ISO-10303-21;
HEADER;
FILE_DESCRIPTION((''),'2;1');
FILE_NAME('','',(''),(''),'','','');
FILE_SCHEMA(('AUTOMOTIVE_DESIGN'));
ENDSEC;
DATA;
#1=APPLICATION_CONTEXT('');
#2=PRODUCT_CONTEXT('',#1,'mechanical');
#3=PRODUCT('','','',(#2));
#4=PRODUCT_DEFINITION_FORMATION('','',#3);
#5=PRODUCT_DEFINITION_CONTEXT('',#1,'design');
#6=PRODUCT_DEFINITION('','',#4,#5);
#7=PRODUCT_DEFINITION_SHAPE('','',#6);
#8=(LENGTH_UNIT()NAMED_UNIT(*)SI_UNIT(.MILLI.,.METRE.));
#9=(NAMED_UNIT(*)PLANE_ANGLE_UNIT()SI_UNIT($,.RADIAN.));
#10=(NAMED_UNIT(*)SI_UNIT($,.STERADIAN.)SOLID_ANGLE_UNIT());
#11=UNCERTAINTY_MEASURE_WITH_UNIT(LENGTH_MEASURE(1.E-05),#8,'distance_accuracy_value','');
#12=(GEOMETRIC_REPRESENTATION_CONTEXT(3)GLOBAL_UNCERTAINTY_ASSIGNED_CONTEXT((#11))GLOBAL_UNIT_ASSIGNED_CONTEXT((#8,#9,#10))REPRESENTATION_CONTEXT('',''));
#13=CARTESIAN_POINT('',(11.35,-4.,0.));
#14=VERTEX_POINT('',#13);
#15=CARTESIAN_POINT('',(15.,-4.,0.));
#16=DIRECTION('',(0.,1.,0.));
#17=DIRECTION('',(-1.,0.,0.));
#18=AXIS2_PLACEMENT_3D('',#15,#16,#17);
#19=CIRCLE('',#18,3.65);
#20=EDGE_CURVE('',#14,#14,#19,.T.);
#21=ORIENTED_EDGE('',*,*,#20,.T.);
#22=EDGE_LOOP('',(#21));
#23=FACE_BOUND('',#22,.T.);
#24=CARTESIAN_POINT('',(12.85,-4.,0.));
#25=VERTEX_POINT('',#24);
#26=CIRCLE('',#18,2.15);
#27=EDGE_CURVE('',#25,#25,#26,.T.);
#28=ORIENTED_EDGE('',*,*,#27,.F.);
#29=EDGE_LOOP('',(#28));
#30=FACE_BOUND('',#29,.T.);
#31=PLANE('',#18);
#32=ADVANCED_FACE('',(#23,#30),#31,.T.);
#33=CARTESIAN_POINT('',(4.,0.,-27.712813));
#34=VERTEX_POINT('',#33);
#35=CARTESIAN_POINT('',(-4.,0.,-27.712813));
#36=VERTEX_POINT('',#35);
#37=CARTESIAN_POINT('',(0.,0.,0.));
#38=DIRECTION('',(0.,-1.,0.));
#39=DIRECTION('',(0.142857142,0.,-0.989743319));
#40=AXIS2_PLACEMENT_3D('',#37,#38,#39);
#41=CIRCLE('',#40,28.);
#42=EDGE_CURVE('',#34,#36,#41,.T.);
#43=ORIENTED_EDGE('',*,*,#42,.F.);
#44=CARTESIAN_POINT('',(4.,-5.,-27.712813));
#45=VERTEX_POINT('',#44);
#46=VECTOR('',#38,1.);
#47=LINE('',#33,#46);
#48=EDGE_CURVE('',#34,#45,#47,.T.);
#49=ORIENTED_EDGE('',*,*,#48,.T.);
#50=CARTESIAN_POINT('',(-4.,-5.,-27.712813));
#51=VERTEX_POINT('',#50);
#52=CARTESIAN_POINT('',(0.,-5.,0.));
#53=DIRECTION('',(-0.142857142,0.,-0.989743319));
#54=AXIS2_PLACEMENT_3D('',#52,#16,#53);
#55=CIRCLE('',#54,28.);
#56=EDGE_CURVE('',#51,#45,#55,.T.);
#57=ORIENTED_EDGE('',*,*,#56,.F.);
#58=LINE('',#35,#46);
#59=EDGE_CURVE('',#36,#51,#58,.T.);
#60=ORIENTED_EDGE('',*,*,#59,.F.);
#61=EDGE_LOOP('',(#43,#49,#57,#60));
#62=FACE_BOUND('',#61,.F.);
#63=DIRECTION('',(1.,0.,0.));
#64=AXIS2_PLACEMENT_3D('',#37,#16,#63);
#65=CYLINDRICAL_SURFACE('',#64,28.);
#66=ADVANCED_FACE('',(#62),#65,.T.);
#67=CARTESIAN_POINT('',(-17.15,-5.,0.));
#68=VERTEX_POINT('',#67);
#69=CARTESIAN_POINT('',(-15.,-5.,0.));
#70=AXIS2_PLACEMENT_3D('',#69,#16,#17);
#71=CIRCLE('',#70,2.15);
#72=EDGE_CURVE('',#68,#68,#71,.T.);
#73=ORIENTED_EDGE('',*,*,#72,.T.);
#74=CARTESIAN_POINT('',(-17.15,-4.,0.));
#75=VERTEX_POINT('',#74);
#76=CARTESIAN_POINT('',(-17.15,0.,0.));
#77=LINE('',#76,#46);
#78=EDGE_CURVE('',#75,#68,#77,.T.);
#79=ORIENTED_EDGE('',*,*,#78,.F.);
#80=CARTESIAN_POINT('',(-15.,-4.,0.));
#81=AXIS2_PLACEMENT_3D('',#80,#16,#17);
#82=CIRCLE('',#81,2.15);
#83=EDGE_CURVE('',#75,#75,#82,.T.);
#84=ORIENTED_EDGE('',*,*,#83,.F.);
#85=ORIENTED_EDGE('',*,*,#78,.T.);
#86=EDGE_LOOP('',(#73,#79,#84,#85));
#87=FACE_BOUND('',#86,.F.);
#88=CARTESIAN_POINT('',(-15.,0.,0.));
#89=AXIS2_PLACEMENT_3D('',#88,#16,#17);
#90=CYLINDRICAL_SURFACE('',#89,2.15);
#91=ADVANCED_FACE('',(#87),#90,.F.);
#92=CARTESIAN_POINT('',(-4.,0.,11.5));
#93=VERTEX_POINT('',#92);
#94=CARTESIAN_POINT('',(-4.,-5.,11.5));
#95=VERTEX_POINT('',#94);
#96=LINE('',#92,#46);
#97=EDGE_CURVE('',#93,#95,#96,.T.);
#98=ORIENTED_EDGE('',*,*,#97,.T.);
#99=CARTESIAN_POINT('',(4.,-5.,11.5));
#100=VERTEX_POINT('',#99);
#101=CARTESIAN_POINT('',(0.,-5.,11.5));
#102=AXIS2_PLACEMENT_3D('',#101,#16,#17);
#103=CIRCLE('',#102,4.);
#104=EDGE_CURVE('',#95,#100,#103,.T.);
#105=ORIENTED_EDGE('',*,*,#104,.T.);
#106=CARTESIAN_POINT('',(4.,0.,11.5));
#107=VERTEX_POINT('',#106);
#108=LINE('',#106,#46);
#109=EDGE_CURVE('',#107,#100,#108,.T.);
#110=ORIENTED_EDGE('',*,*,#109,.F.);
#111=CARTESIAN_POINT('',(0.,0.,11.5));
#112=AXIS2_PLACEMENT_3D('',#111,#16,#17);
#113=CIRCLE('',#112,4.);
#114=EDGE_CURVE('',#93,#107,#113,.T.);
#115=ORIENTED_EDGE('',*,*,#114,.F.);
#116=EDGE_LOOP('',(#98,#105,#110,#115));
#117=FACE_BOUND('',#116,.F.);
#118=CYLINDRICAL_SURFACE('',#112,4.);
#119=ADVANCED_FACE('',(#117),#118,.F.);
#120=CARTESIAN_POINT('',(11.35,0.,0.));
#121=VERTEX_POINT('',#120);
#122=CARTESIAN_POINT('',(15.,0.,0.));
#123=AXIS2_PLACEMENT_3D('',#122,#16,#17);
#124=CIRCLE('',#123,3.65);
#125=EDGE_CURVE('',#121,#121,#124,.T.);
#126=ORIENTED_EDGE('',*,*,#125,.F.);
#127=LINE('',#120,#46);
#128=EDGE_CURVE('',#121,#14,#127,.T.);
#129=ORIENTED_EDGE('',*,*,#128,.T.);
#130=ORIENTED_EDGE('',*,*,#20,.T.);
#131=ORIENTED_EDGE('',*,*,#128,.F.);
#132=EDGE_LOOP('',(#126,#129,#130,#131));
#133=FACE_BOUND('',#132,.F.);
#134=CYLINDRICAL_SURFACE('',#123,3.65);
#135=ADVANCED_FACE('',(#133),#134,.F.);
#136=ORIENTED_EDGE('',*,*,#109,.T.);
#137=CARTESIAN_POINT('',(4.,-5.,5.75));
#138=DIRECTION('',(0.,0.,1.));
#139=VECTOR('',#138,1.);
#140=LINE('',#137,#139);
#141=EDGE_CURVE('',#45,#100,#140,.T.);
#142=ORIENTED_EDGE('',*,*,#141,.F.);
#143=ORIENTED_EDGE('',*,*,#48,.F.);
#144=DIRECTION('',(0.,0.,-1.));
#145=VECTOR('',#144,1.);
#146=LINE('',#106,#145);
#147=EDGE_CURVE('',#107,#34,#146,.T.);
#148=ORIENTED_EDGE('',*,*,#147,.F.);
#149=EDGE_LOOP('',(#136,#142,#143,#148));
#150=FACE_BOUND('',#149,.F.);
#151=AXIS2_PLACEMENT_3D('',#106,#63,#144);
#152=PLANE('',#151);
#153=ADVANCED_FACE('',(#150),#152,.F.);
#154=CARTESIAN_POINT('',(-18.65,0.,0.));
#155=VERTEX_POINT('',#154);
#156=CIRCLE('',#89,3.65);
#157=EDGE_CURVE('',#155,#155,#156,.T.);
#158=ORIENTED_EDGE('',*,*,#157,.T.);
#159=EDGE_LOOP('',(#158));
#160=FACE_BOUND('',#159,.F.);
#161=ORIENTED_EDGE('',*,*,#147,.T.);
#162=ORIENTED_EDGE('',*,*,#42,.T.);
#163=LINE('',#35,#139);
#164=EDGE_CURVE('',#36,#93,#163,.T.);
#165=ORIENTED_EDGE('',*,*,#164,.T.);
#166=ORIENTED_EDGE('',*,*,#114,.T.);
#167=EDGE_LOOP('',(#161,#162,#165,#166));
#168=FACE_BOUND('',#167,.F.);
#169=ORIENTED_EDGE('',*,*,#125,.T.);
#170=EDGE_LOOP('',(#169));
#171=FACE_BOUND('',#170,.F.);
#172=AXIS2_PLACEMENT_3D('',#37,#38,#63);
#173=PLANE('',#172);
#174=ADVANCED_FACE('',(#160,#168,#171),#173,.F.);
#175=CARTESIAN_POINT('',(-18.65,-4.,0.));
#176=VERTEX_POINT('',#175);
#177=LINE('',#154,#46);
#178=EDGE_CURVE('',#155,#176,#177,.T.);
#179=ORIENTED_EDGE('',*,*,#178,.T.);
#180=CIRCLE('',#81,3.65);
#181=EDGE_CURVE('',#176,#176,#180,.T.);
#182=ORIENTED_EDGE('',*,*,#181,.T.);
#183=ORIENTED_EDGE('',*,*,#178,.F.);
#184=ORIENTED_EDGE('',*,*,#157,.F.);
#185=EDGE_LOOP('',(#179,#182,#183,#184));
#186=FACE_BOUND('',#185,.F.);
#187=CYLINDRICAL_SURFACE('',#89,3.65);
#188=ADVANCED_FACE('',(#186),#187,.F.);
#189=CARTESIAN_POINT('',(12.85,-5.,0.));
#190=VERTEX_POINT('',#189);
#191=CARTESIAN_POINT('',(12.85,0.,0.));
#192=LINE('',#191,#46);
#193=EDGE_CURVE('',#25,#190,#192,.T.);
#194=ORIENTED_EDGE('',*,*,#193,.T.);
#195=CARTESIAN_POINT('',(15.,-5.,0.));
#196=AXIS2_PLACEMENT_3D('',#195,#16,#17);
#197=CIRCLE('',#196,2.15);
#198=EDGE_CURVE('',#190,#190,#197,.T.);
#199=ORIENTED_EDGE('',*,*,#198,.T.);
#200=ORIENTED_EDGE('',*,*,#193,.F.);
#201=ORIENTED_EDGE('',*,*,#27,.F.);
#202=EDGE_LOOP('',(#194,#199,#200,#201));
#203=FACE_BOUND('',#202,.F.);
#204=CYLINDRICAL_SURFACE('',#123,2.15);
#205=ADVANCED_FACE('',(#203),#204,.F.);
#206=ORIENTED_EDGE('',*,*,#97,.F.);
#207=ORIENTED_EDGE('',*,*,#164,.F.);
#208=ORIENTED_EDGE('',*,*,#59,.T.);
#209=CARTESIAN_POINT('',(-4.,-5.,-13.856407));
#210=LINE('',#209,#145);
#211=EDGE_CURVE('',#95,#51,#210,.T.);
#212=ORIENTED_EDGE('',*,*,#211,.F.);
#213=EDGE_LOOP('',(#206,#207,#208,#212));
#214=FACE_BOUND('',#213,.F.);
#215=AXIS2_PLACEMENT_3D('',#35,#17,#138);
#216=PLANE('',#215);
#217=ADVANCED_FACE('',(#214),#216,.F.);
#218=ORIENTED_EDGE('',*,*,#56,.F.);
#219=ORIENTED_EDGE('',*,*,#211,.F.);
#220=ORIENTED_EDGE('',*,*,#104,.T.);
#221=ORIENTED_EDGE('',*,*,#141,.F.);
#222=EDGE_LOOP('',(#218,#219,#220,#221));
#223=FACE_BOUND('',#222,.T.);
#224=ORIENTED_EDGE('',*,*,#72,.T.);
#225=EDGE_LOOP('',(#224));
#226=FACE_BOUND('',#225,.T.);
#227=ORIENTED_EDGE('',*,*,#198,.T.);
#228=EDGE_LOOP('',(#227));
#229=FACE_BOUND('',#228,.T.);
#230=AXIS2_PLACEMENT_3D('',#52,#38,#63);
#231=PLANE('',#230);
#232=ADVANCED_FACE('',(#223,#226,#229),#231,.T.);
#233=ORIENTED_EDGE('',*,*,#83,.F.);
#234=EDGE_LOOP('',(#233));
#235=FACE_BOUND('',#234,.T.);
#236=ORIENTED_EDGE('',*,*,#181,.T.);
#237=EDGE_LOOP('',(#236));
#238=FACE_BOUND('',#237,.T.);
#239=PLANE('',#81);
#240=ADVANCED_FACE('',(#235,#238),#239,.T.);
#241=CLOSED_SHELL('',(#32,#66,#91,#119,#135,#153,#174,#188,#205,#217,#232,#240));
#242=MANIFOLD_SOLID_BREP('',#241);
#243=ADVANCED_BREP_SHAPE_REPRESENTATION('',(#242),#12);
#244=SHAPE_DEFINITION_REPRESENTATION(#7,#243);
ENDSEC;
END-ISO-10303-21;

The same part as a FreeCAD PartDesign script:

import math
import FreeCAD as App
import Part
import Sketcher

V = App.Vector
Q = App.Units.Quantity

doc = App.newDocument("Part")
body = doc.addObject("PartDesign::Body", "Body")

sketch1 = doc.addObject("Sketcher::SketchObject", "Sketch")
body.addObject(sketch1)
sketch1.AttachmentSupport = (doc.XZ_Plane, [""])
sketch1.MapMode = "FlatFace"
sketch1.addGeometry(Part.Circle(V(0, 0, 0), V(0, 0, 1), 28), False)
sketch1.addConstraint([
    Sketcher.Constraint("Coincident", 0, 3, -1, 1),
    Sketcher.Constraint("Diameter", 0, Q("56 mm")),
])
pad1 = doc.addObject("PartDesign::Pad", "Pad")
body.addObject(pad1)
pad1.Profile = sketch1
pad1.Length = 5

sketch2 = doc.addObject("Sketcher::SketchObject", "Sketch001")
body.addObject(sketch2)
sketch2.AttachmentSupport = (doc.XZ_Plane, [""])
sketch2.MapMode = "FlatFace"
sketch2.addGeometry([
    Part.ArcOfCircle(Part.Circle(V(0, 11.5, 0), V(0, 0, 1), 4), math.radians(0), math.radians(180)),
    Part.LineSegment(V(4, 11.5, 0), V(4, -27.7, 0)),
    Part.ArcOfCircle(Part.Circle(V(0, 0, 0), V(0, 0, 1), 28), math.radians(-98.21), math.radians(-81.79)),
    Part.LineSegment(V(-4, -27.7, 0), V(-4, 11.5, 0)),
], False)
sketch2.addConstraint([
    Sketcher.Constraint("Tangent", 0, 1, 1, 1),
    Sketcher.Constraint("Coincident", 1, 2, 2, 2),
    Sketcher.Constraint("Coincident", 2, 1, 3, 1),
    Sketcher.Constraint("Tangent", 3, 2, 0, 2),
    Sketcher.Constraint("Vertical", 1),
    Sketcher.Constraint("Vertical", 3),
    Sketcher.Constraint("Coincident", 2, 3, -1, 1),
    Sketcher.Constraint("PointOnObject", 0, 3, -2),
    Sketcher.Constraint("Radius", 0, Q("4 mm")),
    Sketcher.Constraint("DistanceY", -1, 1, 0, 3, Q("11.5 mm")),
    Sketcher.Constraint("Radius", 2, Q("28.000008 mm")),
])
pocket1 = doc.addObject("PartDesign::Pocket", "Pocket")
body.addObject(pocket1)
pocket1.Profile = sketch2
pocket1.Length = 35
pocket1.Reversed = True

sketch3 = doc.addObject("Sketcher::SketchObject", "Sketch002")
body.addObject(sketch3)
sketch3.AttachmentSupport = (doc.XZ_Plane, [""])
sketch3.MapMode = "FlatFace"
sketch3.addGeometry([
    Part.Circle(V(15, 0, 0), V(0, 0, 1), 2.1),
    Part.Circle(V(-15, 0, 0), V(0, 0, 1), 2.1),
], False)
sketch3.addConstraint([
    Sketcher.Constraint("Equal", 0, 1),
    Sketcher.Constraint("Symmetric", 0, 3, 1, 3, -1, 1),
    Sketcher.Constraint("PointOnObject", 0, 3, -1),
    Sketcher.Constraint("Diameter", 0, Q("4.3 mm")),
    Sketcher.Constraint("DistanceX", -1, 1, 0, 3, Q("15 mm")),
])
pocket2 = doc.addObject("PartDesign::Pocket", "Pocket001")
body.addObject(pocket2)
pocket2.Profile = sketch3
pocket2.Length = 25
pocket2.Reversed = True

sketch4 = doc.addObject("Sketcher::SketchObject", "Sketch003")
body.addObject(sketch4)
sketch4.AttachmentSupport = (doc.XZ_Plane, [""])
sketch4.MapMode = "FlatFace"
sketch4.addGeometry([
    Part.Circle(V(15, 0, 0), V(0, 0, 1), 3.6),
    Part.Circle(V(-15, 0, 0), V(0, 0, 1), 3.6),
], False)
sketch4.addConstraint([
    Sketcher.Constraint("Equal", 0, 1),
    Sketcher.Constraint("Symmetric", 0, 3, 1, 3, -1, 1),
    Sketcher.Constraint("PointOnObject", 0, 3, -1),
    Sketcher.Constraint("Diameter", 0, Q("7.3 mm")),
    Sketcher.Constraint("DistanceX", -1, 1, 0, 3, Q("15 mm")),
])
pocket3 = doc.addObject("PartDesign::Pocket", "Pocket002")
body.addObject(pocket3)
pocket3.Profile = sketch4
pocket3.Length = 4
pocket3.Reversed = True

doc.recompute()
